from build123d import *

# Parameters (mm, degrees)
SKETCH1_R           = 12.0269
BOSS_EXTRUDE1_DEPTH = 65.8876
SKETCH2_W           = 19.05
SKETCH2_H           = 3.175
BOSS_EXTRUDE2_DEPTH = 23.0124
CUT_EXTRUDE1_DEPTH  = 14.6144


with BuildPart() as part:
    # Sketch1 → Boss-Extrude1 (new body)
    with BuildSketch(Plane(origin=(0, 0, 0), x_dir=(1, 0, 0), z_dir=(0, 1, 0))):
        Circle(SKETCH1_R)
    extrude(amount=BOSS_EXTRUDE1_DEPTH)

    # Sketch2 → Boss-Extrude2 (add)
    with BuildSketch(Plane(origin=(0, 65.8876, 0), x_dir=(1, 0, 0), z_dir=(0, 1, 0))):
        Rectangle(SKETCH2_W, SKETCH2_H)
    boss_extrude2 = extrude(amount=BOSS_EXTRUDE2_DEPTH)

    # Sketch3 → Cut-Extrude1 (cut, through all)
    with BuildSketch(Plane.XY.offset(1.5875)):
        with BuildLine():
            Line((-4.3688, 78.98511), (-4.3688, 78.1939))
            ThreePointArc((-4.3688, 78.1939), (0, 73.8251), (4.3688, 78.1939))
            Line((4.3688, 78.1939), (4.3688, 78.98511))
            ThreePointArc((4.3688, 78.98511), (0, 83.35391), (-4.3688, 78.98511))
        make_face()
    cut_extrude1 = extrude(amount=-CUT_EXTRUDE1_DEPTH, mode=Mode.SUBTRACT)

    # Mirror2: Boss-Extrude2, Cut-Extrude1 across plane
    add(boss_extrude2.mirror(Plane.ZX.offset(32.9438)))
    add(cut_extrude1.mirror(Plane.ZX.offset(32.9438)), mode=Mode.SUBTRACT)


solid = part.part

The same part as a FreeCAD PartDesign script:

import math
import FreeCAD as App
import Part
import Sketcher

V = App.Vector
Q = App.Units.Quantity


def add_polygon(sketch, points):
    """Adds a closed chain of lines whose ends are joined by coincident constraints."""
    first, n = sketch.GeometryCount, len(points)
    for a, b in zip(points, points[1:] + points[:1]):
        sketch.addGeometry(Part.LineSegment(App.Vector(*a, 0), App.Vector(*b, 0)), False)
    for i in range(n):
        sketch.addConstraint(Sketcher.Constraint("Coincident", first + i, 2, first + (i + 1) % n, 1))

doc = App.newDocument("Part")
body = doc.addObject("PartDesign::Body", "Body")

sketch1 = body.newObject("Sketcher::SketchObject", "Sketch")
sketch1.AttachmentSupport = (doc.getObject("XZ_Plane"), [""])
sketch1.MapMode = "FlatFace"
sketch1.addGeometry(Part.Circle(V(0, 0, 0), V(0, 0, 1), 12.0269), False)
sketch1.addConstraint(Sketcher.Constraint("Coincident", 0, 3, -1, 1))
sketch1.addConstraint(Sketcher.Constraint("Diameter", 0, Q("0.947 in")))
pad1 = body.newObject("PartDesign::Pad", "Pad")
pad1.Profile = sketch1
pad1.Length = Q("2.594 in")
pad1.Reversed = True

sketch2 = body.newObject("Sketcher::SketchObject", "Sketch001")
sketch2.AttachmentSupport = (doc.getObject("XZ_Plane"), [""])
sketch2.MapMode = "FlatFace"
sketch2.AttachmentOffset = App.Placement(V(0, 0, -2.594 * 25.4), App.Rotation())
add_polygon(sketch2, [(-9.525, -1.5875), (-9.525, 1.5875), (9.525, 1.5875), (9.525, -1.5875)])
sketch2.addConstraint(Sketcher.Constraint("Vertical", 0))
sketch2.addConstraint(Sketcher.Constraint("Horizontal", 1))
sketch2.addConstraint(Sketcher.Constraint("Vertical", 2))
sketch2.addConstraint(Sketcher.Constraint("Horizontal", 3))
sketch2.addConstraint(Sketcher.Constraint("Symmetric", 0, 2, 2, 2, -1, 1))
sketch2.addConstraint(Sketcher.Constraint("DistanceX", 1, 1, 1, 2, Q("0.75 in")))
sketch2.addConstraint(Sketcher.Constraint("DistanceY", 0, 1, 0, 2, Q("0.125 in")))
pad2 = body.newObject("PartDesign::Pad", "Pad001")
pad2.Profile = sketch2
pad2.Length = Q("0.906 in")
pad2.Reversed = True

sketch3 = body.newObject("Sketcher::SketchObject", "Sketch002")
sketch3.AttachmentSupport = (doc.getObject("XY_Plane"), [""])
sketch3.MapMode = "FlatFace"
sketch3.AttachmentOffset = App.Placement(V(0, 0, 0.0625 * 25.4), App.Rotation())
sketch3.addGeometry(Part.LineSegment(V(-4.3688, 78.98511, 0), V(-4.3688, 78.1939, 0)), False)
sketch3.addGeometry(Part.ArcOfCircle(Part.Circle(V(0, 78.1939, 0), V(0, 0, 1), 4.3688), math.radians(180), math.radians(360)), False)
sketch3.addGeometry(Part.LineSegment(V(4.3688, 78.1939, 0), V(4.3688, 78.98511, 0)), False)
sketch3.addGeometry(Part.ArcOfCircle(Part.Circle(V(0, 78.98511, 0), V(0, 0, 1), 4.3688), math.radians(0), math.radians(180)), False)
sketch3.addConstraint(Sketcher.Constraint("Tangent", 0, 2, 1, 1))
sketch3.addConstraint(Sketcher.Constraint("Tangent", 1, 2, 2, 1))
sketch3.addConstraint(Sketcher.Constraint("Tangent", 2, 2, 3, 1))
sketch3.addConstraint(Sketcher.Constraint("Tangent", 3, 2, 0, 1))
sketch3.addConstraint(Sketcher.Constraint("Vertical", 0))
sketch3.addConstraint(Sketcher.Constraint("Vertical", 2))
sketch3.addConstraint(Sketcher.Constraint("PointOnObject", 1, 3, -2))
sketch3.addConstraint(Sketcher.Constraint("Radius", 1, Q("0.172 in")))
sketch3.addConstraint(Sketcher.Constraint("DistanceY", -1, 1, 1, 3, Q("3.0785 in")))
sketch3.addConstraint(Sketcher.Constraint("DistanceY", 0, 2, 0, 1, Q("0.79121 mm")))
pocket1 = body.newObject("PartDesign::Pocket", "Pocket")
pocket1.Profile = sketch3
pocket1.Type = "ThroughAll"
doc.recompute()

datumplane = body.newObject("PartDesign::Plane", "DatumPlane")
datumplane.AttachmentSupport = (doc.getObject("XZ_Plane"), [""])
datumplane.MapMode = "FlatFace"
datumplane.AttachmentOffset = App.Placement(V(0, 0, -1.297 * 25.4), App.Rotation())
mirrored = body.newObject("PartDesign::Mirrored", "Mirrored")
mirrored.Originals = [pad2, pocket1]
mirrored.MirrorPlane = (datumplane, [""])
body.Tip = mirrored

doc.recompute()
